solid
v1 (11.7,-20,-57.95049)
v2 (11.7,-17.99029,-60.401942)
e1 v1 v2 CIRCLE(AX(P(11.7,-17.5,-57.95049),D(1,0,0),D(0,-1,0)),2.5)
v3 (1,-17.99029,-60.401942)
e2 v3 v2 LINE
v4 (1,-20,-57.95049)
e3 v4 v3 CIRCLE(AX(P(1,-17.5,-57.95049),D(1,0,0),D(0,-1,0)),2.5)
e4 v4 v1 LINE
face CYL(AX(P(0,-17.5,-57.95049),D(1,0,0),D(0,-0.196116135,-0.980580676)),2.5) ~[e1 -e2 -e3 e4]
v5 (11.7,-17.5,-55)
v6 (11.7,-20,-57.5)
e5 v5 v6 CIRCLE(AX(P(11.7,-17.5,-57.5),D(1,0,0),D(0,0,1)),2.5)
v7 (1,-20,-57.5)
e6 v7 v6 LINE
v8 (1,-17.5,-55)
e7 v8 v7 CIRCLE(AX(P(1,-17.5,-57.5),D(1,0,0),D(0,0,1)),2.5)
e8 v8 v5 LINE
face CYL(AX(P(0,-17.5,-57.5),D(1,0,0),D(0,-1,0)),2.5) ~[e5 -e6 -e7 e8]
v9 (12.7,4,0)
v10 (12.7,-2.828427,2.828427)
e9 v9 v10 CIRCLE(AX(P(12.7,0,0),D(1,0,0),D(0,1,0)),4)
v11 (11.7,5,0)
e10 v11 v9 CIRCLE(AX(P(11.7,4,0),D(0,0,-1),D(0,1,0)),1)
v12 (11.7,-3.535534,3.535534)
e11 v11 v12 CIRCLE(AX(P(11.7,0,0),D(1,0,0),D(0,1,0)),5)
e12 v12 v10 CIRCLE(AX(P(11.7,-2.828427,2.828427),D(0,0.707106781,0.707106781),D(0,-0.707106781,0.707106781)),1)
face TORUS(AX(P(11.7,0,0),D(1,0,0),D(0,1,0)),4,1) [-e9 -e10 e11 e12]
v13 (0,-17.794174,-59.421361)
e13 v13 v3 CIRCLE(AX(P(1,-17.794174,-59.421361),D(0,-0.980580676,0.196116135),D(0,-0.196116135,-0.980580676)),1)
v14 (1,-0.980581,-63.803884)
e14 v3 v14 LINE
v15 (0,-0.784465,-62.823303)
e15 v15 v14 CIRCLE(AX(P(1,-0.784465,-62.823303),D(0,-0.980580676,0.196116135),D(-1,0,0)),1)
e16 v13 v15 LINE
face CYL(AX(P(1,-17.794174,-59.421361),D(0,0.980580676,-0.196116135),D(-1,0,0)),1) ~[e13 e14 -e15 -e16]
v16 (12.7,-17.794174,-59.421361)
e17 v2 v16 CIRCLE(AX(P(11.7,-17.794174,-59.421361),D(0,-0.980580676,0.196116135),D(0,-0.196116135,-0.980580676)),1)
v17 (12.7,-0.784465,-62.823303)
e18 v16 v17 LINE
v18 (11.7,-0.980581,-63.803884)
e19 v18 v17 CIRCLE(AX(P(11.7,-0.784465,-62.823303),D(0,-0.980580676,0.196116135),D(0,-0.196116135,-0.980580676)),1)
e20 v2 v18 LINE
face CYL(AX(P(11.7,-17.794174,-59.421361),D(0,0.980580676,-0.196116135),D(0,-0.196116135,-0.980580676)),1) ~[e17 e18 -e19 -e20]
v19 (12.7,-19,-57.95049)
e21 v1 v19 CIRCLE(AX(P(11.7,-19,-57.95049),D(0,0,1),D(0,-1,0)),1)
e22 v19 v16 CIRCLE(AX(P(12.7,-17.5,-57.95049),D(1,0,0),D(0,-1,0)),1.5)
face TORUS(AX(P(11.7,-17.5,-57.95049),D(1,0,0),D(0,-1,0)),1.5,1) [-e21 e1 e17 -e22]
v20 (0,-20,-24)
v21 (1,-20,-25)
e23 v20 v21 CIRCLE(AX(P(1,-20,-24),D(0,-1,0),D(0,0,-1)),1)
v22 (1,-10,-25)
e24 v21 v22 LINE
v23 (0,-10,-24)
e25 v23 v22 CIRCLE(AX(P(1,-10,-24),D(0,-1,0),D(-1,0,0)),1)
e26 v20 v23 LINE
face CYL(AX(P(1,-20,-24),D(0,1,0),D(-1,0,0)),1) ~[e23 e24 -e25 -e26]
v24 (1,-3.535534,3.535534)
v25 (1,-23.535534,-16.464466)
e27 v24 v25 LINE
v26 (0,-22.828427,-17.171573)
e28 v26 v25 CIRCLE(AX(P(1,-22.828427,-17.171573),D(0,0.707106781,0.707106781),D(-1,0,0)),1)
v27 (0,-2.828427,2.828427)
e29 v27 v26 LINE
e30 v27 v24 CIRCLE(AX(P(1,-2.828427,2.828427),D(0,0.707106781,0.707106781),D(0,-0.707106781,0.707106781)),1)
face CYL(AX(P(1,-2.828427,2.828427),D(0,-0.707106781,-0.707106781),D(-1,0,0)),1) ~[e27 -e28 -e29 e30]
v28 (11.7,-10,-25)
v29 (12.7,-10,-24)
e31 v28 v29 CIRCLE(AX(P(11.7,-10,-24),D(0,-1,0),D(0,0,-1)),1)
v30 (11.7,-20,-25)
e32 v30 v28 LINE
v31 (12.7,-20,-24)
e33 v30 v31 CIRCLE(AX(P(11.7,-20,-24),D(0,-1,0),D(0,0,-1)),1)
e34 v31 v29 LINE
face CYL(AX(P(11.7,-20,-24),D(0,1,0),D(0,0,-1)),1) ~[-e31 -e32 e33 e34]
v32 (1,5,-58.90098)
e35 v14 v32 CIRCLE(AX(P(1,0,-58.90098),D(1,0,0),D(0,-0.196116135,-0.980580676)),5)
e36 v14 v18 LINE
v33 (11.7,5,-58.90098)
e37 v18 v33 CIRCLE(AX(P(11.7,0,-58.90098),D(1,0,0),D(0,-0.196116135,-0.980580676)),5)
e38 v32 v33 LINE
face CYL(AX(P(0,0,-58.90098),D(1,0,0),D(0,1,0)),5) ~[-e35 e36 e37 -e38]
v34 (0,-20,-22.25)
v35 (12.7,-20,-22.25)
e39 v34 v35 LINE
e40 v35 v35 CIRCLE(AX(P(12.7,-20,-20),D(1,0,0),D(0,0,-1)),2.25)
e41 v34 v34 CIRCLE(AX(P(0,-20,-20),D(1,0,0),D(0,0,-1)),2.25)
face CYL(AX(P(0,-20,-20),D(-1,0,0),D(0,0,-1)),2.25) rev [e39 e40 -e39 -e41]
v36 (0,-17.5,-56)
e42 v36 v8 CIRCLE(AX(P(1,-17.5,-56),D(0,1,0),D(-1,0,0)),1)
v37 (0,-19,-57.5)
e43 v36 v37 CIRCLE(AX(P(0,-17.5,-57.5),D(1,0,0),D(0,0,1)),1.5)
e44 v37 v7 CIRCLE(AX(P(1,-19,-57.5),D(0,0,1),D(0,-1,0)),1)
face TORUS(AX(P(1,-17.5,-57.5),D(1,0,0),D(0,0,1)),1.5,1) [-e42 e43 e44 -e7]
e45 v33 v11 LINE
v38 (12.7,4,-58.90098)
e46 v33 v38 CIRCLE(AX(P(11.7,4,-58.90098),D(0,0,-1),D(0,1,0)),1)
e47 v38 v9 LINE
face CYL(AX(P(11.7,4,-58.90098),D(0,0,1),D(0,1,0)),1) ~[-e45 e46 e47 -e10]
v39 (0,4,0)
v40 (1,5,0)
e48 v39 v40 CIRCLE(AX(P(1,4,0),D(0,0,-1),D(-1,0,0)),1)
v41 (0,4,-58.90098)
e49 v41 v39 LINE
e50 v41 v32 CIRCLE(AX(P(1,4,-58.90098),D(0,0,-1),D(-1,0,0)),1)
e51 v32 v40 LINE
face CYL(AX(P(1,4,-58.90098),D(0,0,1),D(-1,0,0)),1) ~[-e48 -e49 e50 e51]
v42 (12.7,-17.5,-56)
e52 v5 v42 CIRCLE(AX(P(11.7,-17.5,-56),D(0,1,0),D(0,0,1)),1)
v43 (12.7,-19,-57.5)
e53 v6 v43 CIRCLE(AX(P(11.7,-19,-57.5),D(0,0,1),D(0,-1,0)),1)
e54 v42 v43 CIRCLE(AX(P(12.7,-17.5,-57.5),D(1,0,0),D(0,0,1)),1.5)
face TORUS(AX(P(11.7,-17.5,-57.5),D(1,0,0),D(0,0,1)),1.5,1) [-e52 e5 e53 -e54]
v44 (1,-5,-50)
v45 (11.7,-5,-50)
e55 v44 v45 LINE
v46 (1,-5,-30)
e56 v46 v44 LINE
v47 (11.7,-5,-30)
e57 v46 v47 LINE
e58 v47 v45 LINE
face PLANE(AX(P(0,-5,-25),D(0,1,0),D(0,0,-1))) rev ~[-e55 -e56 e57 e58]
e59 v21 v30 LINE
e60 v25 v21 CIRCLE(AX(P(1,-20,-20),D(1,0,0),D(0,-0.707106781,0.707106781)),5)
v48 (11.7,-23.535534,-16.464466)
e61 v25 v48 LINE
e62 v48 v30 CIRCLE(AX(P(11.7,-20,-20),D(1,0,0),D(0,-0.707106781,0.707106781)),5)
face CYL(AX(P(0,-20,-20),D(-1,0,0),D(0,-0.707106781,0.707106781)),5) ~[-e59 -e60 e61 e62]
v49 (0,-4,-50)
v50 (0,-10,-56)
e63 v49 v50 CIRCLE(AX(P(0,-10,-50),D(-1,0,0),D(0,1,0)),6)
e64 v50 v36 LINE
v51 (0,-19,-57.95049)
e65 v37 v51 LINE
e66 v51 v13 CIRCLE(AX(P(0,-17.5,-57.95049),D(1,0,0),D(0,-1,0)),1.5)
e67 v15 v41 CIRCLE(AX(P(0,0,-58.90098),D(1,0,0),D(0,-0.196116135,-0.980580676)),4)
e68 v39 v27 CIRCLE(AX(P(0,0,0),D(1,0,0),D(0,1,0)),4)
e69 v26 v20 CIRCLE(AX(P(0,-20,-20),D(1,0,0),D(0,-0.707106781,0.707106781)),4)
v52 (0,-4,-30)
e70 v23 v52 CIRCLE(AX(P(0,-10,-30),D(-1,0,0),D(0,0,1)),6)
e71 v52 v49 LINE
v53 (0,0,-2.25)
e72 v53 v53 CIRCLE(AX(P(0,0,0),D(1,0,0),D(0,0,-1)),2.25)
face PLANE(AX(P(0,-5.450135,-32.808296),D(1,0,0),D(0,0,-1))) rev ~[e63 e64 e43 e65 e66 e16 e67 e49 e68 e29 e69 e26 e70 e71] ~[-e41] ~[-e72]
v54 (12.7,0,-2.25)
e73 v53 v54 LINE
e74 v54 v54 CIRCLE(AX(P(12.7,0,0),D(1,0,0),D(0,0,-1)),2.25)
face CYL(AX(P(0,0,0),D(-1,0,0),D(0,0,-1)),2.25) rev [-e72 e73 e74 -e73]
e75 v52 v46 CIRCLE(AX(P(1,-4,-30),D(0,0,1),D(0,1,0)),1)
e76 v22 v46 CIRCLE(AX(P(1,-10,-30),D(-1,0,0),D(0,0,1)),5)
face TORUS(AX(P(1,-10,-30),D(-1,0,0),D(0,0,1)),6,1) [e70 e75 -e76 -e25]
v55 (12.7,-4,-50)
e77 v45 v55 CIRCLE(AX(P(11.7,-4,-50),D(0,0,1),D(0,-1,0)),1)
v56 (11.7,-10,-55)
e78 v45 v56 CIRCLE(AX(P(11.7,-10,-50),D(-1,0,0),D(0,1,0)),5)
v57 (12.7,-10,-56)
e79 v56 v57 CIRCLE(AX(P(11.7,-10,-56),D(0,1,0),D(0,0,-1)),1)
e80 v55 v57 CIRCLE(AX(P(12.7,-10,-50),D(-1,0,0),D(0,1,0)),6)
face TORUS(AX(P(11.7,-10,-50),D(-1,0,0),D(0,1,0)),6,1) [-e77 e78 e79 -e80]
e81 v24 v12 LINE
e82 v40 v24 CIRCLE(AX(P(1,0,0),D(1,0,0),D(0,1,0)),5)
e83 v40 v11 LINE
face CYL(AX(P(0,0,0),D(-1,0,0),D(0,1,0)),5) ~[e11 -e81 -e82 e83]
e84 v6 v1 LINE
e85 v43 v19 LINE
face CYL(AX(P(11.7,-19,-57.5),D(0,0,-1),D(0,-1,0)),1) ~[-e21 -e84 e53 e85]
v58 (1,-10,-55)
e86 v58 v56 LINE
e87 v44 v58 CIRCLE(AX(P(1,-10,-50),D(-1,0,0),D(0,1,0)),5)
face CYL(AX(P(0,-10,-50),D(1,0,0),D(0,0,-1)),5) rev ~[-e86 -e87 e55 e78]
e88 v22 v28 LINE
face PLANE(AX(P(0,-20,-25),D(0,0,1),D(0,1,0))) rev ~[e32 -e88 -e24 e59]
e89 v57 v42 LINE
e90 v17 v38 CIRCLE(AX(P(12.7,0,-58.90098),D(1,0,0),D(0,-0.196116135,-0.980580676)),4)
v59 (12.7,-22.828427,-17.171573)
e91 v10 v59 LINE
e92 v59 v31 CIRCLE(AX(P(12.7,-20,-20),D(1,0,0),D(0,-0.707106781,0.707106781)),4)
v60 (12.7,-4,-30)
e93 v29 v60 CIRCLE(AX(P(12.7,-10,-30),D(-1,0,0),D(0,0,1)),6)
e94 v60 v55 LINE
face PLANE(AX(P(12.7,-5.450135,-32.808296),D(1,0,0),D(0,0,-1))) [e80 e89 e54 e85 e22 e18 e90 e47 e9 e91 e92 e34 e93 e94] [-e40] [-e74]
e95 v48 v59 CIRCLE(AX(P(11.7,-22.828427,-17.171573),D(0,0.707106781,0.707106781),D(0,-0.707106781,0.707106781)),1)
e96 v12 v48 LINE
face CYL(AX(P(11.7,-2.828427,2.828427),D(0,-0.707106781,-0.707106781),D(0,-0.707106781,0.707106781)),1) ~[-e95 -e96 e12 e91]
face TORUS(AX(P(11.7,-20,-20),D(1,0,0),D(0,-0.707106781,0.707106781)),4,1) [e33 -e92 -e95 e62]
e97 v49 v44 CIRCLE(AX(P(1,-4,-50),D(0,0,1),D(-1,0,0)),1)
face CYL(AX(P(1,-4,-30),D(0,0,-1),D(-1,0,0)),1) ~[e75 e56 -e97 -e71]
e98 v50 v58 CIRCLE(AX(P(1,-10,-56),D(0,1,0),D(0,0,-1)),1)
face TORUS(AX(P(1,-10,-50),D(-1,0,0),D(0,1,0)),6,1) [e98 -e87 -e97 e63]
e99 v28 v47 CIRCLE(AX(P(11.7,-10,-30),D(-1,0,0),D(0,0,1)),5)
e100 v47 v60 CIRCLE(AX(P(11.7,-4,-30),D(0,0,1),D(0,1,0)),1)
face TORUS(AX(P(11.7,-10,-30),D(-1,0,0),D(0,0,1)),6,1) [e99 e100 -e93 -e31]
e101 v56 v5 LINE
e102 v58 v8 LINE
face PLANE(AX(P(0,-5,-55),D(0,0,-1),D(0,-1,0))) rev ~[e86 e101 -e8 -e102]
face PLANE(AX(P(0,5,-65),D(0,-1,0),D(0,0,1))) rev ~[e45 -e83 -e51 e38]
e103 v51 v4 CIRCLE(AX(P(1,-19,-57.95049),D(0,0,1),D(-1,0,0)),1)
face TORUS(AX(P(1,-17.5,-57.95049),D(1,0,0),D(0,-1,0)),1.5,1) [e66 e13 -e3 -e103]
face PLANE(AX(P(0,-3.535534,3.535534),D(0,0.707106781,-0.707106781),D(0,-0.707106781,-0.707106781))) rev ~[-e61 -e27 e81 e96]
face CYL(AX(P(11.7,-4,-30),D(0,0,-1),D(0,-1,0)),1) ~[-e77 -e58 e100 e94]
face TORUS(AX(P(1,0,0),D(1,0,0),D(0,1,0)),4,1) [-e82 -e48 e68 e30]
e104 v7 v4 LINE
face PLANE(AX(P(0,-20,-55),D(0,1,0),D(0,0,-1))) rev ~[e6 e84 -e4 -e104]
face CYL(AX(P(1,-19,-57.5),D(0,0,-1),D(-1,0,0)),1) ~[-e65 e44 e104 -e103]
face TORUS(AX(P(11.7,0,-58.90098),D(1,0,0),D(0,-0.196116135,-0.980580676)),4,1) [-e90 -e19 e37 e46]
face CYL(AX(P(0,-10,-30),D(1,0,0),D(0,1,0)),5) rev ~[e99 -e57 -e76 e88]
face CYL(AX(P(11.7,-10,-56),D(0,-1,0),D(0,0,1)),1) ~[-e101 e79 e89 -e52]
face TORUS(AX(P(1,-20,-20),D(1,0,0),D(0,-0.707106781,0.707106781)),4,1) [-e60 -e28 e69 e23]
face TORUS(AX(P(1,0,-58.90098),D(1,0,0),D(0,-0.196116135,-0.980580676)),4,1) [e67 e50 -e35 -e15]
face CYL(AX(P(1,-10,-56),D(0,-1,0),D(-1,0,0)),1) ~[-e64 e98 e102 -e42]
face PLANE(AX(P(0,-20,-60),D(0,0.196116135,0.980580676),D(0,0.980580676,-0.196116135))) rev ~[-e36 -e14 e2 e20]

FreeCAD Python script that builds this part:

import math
import FreeCAD as App
import Part
import Sketcher

V = App.Vector
Q = App.Units.Quantity


def edges_at(feature, points):
    """Names of the edges that pass closest to the given points."""
    edges = feature.Shape.Edges
    near = lambda p: min(range(len(edges)), key=lambda i: edges[i].distToShape(Part.Vertex(*p))[0])
    return sorted({f"Edge{near(p) + 1}" for p in points})

doc = App.newDocument("Part")
body = doc.addObject("PartDesign::Body", "Body")

sketch1 = doc.addObject("Sketcher::SketchObject", "Sketch")
body.addObject(sketch1)
sketch1.AttachmentSupport = (doc.YZ_Plane, [""])
sketch1.MapMode = "FlatFace"
sketch1.addGeometry([
    Part.LineSegment(V(5, -65, 0), V(5, 0, 0)),
    Part.ArcOfCircle(Part.Circle(V(0, 0, 0), V(0, 0, 1), 5), math.radians(0), math.radians(135)),
    Part.LineSegment(V(-3.535534, 3.535534, 0), V(-23.535534, -16.464466, 0)),
    Part.ArcOfCircle(Part.Circle(V(-20, -20, 0), V(0, 0, 1), 5), math.radians(135), math.radians(270)),
    Part.LineSegment(V(-20, -25, 0), V(-5, -25, 0)),
    Part.LineSegment(V(-5, -25, 0), V(-5, -55, 0)),
    Part.LineSegment(V(-5, -55, 0), V(-20, -55, 0)),
    Part.LineSegment(V(-20, -55, 0), V(-20, -60, 0)),
    Part.LineSegment(V(-20, -60, 0), V(5, -65, 0)),
    Part.Circle(V(-20, -20, 0), V(0, 0, 1), 2.25),
    Part.Circle(V(0, 0, 0), V(0, 0, 1), 2.25),
], False)
sketch1.addConstraint([
    Sketcher.Constraint("Tangent", 0, 2, 1, 1),
    Sketcher.Constraint("Tangent", 1, 2, 2, 1),
    Sketcher.Constraint("Tangent", 2, 2, 3, 1),
    Sketcher.Constraint("Tangent", 3, 2, 4, 1),
    Sketcher.Constraint("Coincident", 4, 2, 5, 1),
    Sketcher.Constraint("Coincident", 5, 2, 6, 1),
    Sketcher.Constraint("Coincident", 6, 2, 7, 1),
    Sketcher.Constraint("Coincident", 7, 2, 8, 1),
    Sketcher.Constraint("Coincident", 8, 2, 0, 1),
    Sketcher.Constraint("Vertical", 0),
    Sketcher.Constraint("Horizontal", 4),
    Sketcher.Constraint("Vertical", 5),
    Sketcher.Constraint("Horizontal", 6),
    Sketcher.Constraint("Vertical", 7),
    Sketcher.Constraint("Coincident", 1, 3, -1, 1),
    Sketcher.Constraint("Coincident", 10, 3, -1, 1),
    Sketcher.Constraint("Coincident", 9, 3, 3, 3),
    Sketcher.Constraint("Equal", 1, 3),
    Sketcher.Constraint("Equal", 9, 10),
    Sketcher.Constraint("Vertical", 3, 2, 6, 2),
    Sketcher.Constraint("Radius", 1, Q("5 mm")),
    Sketcher.Constraint("Diameter", 9, Q("4.5 mm")),
    Sketcher.Constraint("DistanceX", 4, 1, 4, 2, Q("15 mm")),
    Sketcher.Constraint("DistanceY", 0, 1, 0, 2, Q("65 mm")),
    Sketcher.Constraint("DistanceY", 5, 2, 5, 1, Q("30 mm")),
    Sketcher.Constraint("DistanceY", 7, 2, 7, 1, Q("5 mm")),
    Sketcher.Constraint("Angle", 2, Q("-135 deg")),
    Sketcher.Constraint("DistanceX", 3, 3, -1, 1, Q("20 mm")),
])
pad1 = doc.addObject("PartDesign::Pad", "Pad")
body.addObject(pad1)
pad1.Profile = sketch1
pad1.Length = 12.7
doc.recompute()

fillet = doc.addObject("PartDesign::Fillet", "Fillet")
body.addObject(fillet)
fillet.Base = (pad1, edges_at(pad1, [(6.35, 5, -65), (6.35, -5, -55), (6.35, -5, -25)]))
fillet.Radius = 5
doc.recompute()

fillet2 = doc.addObject("PartDesign::Fillet", "Fillet001")
body.addObject(fillet2)
fillet2.Base = (fillet, edges_at(fillet, [(6.35, -20, -60), (6.35, -20, -55)]))
fillet2.Radius = 2.5
doc.recompute()

fillet3 = doc.addObject("PartDesign::Fillet", "Fillet002")
body.addObject(fillet3)
fillet3.Base = (fillet2, edges_at(fillet2, [
    (12.7, 1.913, 4.619),
    (0, 5, -29.45),
    (0, -24.619, -21.913),
    (12.7, -13.536, -6.464),
    (0, -13.536, -6.464),
    (0, 1.913, 4.619),
    (12.7, -24.619, -21.913),
    (0, -5, -40),
    (12.7, -5, -40),
    (0, -15, -25),
    (0, 3.17, -62.768),
    (12.7, -15, -25),
    (12.7, 3.17, -62.768),
    (0, -6.464, -53.536),
    (12.7, -6.464, -53.536),
    (0, -6.464, -26.464),
    (12.7, -6.464, -26.464),
    (12.7, 5, -29.45),
    (0, -9.485, -62.103),
    (12.7, -9.485, -62.103),
    (0, -20, -57.725),
    (0, -13.75, -55),
    (0, -19.268, -55.732),
    (0, -19.433, -59.535),
    (12.7, -20, -57.725),
    (12.7, -13.75, -55),
    (12.7, -19.268, -55.732),
    (12.7, -19.433, -59.535),
]))
fillet3.Radius = 1

doc.recompute()
